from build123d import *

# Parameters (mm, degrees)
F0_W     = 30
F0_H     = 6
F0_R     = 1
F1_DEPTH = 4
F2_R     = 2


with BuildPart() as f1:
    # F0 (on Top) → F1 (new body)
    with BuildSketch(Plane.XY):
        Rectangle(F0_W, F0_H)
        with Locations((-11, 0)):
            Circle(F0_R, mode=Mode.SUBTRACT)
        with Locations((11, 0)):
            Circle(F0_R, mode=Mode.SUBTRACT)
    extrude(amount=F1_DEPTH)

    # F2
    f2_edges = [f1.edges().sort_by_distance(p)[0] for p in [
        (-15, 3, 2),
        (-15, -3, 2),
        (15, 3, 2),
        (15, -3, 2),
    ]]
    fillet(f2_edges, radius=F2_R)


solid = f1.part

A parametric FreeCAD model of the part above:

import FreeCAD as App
import Part
import Sketcher
from FreeCAD import Vector


def edges_at(feature, points):
    """Names of the edges that pass closest to the given points."""
    edges = feature.Shape.Edges
    near = lambda p: min(range(len(edges)), key=lambda i: edges[i].distToShape(Part.Vertex(*p))[0])
    return sorted({f"Edge{near(p) + 1}" for p in points})


def add_polygon(sketch, points):
    """Adds a closed chain of lines whose ends are joined by coincident constraints."""
    first, n = sketch.GeometryCount, len(points)
    for a, b in zip(points, points[1:] + points[:1]):
        sketch.addGeometry(Part.LineSegment(App.Vector(*a, 0), App.Vector(*b, 0)), False)
    for i in range(n):
        sketch.addConstraint(Sketcher.Constraint("Coincident", first + i, 2, first + (i + 1) % n, 1))

doc = App.newDocument("Part")
params = doc.addObject("Spreadsheet::Sheet", "Params")
for row, (alias, value) in enumerate([
    ("sketch1_diameter", "2 mm"),
    ("sketch1_width", "30 mm"),
    ("sketch1_height", "6 mm"),
    ("pad1_length", "4 mm"),
    ("fillet_radius", "2 mm"),
], start=1):
    params.set(f"A{row}", alias)
    params.set(f"B{row}", "=" + value)
    params.setAlias(f"B{row}", alias)

body = doc.addObject("PartDesign::Body", "Body")

sketch1 = body.newObject("Sketcher::SketchObject", "Sketch")
sketch1.AttachmentSupport = (doc.getObject("XY_Plane"), [""])
sketch1.MapMode = "FlatFace"
add_polygon(sketch1, [(-15, 3), (-15, -3), (15, -3), (15, 3)])
sketch1.addGeometry(Part.Circle(Vector(-11, 0, 0), Vector(0, 0, 1), 1), False)
sketch1.addGeometry(Part.Circle(Vector(11, 0, 0), Vector(0, 0, 1), 1), False)
sketch1.addConstraint(Sketcher.Constraint("Vertical", 0))
sketch1.addConstraint(Sketcher.Constraint("Horizontal", 1))
sketch1.addConstraint(Sketcher.Constraint("Vertical", 2))
sketch1.addConstraint(Sketcher.Constraint("Horizontal", 3))
sketch1.addConstraint(Sketcher.Constraint("Equal", 4, 5))
sketch1.addConstraint(Sketcher.Constraint("Symmetric", 4, 3, 5, 3, -1, 1))
sketch1.addConstraint(Sketcher.Constraint("Symmetric", 0, 2, 2, 2, -1, 1))
sketch1.addConstraint(Sketcher.Constraint("PointOnObject", 4, 3, -1))
sketch1.addConstraint(Sketcher.Constraint("Diameter", 4, 2.0))
sketch1.addConstraint(Sketcher.Constraint("DistanceX", 1, 1, 1, 2, 30.0))
sketch1.addConstraint(Sketcher.Constraint("DistanceY", 0, 2, 0, 1, 6.0))
sketch1.addConstraint(Sketcher.Constraint("DistanceX", 4, 3, -1, 1, 11.0))
sketch1.setExpression("Constraints[12]", "Params.sketch1_diameter")
sketch1.setExpression("Constraints[13]", "Params.sketch1_width")
sketch1.setExpression("Constraints[14]", "Params.sketch1_height")
pad1 = body.newObject("PartDesign::Pad", "Pad")
pad1.Profile = sketch1
pad1.setExpression("Length", "Params.pad1_length")
doc.recompute()

fillet = body.newObject("PartDesign::Fillet", "Fillet")
fillet.Base = (pad1, edges_at(pad1, [
    (-15, 3, 2),
    (-15, -3, 2),
    (15, 3, 2),
    (15, -3, 2),
]))
fillet.setExpression("Radius", "Params.fillet_radius")

doc.recompute()
